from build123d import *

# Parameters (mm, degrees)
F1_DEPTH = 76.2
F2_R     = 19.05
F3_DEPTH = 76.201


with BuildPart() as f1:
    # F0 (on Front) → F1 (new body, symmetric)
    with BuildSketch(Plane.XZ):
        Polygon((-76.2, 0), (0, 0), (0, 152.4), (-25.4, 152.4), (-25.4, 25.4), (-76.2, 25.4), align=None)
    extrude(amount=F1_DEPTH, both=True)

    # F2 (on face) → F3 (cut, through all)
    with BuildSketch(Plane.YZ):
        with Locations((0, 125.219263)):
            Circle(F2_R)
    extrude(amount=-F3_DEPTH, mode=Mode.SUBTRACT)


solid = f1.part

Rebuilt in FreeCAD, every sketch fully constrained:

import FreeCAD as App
import Part
import Sketcher
Q = App.Units.Quantity

doc = App.newDocument("Part")
body = doc.addObject("PartDesign::Body", "Body")

sketch1 = body.newObject("Sketcher::SketchObject", "Sketch")
sketch1.AttachmentSupport = (doc.getObject("XZ_Plane"), [""])
sketch1.MapMode = "FlatFace"
sketch1.addGeometry(Part.LineSegment(App.Vector(-76, 0, 0), App.Vector(0, 0, 0)), False)
sketch1.addGeometry(Part.LineSegment(App.Vector(0, 0, 0), App.Vector(0, 152, 0)), False)
sketch1.addGeometry(Part.LineSegment(App.Vector(0, 152, 0), App.Vector(-25, 152, 0)), False)
sketch1.addGeometry(Part.LineSegment(App.Vector(-25, 152, 0), App.Vector(-25, 25, 0)), False)
sketch1.addGeometry(Part.LineSegment(App.Vector(-25, 25, 0), App.Vector(-76, 25, 0)), False)
sketch1.addGeometry(Part.LineSegment(App.Vector(-76, 25, 0), App.Vector(-76, 0, 0)), False)
sketch1.addConstraint(Sketcher.Constraint("Coincident", 0, 2, 1, 1))
sketch1.addConstraint(Sketcher.Constraint("Coincident", 1, 2, 2, 1))
sketch1.addConstraint(Sketcher.Constraint("Coincident", 2, 2, 3, 1))
sketch1.addConstraint(Sketcher.Constraint("Coincident", 3, 2, 4, 1))
sketch1.addConstraint(Sketcher.Constraint("Coincident", 4, 2, 5, 1))
sketch1.addConstraint(Sketcher.Constraint("Coincident", 5, 2, 0, 1))
sketch1.addConstraint(Sketcher.Constraint("Horizontal", 0))
sketch1.addConstraint(Sketcher.Constraint("Vertical", 1))
sketch1.addConstraint(Sketcher.Constraint("Horizontal", 2))
sketch1.addConstraint(Sketcher.Constraint("Vertical", 3))
sketch1.addConstraint(Sketcher.Constraint("Horizontal", 4))
sketch1.addConstraint(Sketcher.Constraint("Vertical", 5))
sketch1.addConstraint(Sketcher.Constraint("Coincident", 0, 2, -1, 1))
sketch1.addConstraint(Sketcher.Constraint("Equal", 2, 5))
sketch1.addConstraint(Sketcher.Constraint("DistanceX", 0, 1, 0, 2, Q("3 in")))
sketch1.addConstraint(Sketcher.Constraint("DistanceX", 2, 2, 2, 1, Q("1 in")))
sketch1.addConstraint(Sketcher.Constraint("DistanceY", 1, 1, 1, 2, Q("6 in")))
pad1 = body.newObject("PartDesign::Pad", "Pad")
pad1.Profile = sketch1
pad1.Length = Q("6 in")
pad1.Midplane = True

sketch2 = body.newObject("Sketcher::SketchObject", "Sketch001")
sketch2.AttachmentSupport = (doc.getObject("YZ_Plane"), [""])
sketch2.MapMode = "FlatFace"
sketch2.addGeometry(Part.Circle(App.Vector(0, 125, 0), App.Vector(0, 0, 1), 19), False)
sketch2.addConstraint(Sketcher.Constraint("PointOnObject", 0, 3, -2))
sketch2.addConstraint(Sketcher.Constraint("Diameter", 0, Q("1.5 in")))
sketch2.addConstraint(Sketcher.Constraint("DistanceY", -1, 1, 0, 3, Q("125.219263 mm")))
pocket1 = body.newObject("PartDesign::Pocket", "Pocket")
pocket1.Profile = sketch2
pocket1.Type = "ThroughAll"

doc.recompute()
